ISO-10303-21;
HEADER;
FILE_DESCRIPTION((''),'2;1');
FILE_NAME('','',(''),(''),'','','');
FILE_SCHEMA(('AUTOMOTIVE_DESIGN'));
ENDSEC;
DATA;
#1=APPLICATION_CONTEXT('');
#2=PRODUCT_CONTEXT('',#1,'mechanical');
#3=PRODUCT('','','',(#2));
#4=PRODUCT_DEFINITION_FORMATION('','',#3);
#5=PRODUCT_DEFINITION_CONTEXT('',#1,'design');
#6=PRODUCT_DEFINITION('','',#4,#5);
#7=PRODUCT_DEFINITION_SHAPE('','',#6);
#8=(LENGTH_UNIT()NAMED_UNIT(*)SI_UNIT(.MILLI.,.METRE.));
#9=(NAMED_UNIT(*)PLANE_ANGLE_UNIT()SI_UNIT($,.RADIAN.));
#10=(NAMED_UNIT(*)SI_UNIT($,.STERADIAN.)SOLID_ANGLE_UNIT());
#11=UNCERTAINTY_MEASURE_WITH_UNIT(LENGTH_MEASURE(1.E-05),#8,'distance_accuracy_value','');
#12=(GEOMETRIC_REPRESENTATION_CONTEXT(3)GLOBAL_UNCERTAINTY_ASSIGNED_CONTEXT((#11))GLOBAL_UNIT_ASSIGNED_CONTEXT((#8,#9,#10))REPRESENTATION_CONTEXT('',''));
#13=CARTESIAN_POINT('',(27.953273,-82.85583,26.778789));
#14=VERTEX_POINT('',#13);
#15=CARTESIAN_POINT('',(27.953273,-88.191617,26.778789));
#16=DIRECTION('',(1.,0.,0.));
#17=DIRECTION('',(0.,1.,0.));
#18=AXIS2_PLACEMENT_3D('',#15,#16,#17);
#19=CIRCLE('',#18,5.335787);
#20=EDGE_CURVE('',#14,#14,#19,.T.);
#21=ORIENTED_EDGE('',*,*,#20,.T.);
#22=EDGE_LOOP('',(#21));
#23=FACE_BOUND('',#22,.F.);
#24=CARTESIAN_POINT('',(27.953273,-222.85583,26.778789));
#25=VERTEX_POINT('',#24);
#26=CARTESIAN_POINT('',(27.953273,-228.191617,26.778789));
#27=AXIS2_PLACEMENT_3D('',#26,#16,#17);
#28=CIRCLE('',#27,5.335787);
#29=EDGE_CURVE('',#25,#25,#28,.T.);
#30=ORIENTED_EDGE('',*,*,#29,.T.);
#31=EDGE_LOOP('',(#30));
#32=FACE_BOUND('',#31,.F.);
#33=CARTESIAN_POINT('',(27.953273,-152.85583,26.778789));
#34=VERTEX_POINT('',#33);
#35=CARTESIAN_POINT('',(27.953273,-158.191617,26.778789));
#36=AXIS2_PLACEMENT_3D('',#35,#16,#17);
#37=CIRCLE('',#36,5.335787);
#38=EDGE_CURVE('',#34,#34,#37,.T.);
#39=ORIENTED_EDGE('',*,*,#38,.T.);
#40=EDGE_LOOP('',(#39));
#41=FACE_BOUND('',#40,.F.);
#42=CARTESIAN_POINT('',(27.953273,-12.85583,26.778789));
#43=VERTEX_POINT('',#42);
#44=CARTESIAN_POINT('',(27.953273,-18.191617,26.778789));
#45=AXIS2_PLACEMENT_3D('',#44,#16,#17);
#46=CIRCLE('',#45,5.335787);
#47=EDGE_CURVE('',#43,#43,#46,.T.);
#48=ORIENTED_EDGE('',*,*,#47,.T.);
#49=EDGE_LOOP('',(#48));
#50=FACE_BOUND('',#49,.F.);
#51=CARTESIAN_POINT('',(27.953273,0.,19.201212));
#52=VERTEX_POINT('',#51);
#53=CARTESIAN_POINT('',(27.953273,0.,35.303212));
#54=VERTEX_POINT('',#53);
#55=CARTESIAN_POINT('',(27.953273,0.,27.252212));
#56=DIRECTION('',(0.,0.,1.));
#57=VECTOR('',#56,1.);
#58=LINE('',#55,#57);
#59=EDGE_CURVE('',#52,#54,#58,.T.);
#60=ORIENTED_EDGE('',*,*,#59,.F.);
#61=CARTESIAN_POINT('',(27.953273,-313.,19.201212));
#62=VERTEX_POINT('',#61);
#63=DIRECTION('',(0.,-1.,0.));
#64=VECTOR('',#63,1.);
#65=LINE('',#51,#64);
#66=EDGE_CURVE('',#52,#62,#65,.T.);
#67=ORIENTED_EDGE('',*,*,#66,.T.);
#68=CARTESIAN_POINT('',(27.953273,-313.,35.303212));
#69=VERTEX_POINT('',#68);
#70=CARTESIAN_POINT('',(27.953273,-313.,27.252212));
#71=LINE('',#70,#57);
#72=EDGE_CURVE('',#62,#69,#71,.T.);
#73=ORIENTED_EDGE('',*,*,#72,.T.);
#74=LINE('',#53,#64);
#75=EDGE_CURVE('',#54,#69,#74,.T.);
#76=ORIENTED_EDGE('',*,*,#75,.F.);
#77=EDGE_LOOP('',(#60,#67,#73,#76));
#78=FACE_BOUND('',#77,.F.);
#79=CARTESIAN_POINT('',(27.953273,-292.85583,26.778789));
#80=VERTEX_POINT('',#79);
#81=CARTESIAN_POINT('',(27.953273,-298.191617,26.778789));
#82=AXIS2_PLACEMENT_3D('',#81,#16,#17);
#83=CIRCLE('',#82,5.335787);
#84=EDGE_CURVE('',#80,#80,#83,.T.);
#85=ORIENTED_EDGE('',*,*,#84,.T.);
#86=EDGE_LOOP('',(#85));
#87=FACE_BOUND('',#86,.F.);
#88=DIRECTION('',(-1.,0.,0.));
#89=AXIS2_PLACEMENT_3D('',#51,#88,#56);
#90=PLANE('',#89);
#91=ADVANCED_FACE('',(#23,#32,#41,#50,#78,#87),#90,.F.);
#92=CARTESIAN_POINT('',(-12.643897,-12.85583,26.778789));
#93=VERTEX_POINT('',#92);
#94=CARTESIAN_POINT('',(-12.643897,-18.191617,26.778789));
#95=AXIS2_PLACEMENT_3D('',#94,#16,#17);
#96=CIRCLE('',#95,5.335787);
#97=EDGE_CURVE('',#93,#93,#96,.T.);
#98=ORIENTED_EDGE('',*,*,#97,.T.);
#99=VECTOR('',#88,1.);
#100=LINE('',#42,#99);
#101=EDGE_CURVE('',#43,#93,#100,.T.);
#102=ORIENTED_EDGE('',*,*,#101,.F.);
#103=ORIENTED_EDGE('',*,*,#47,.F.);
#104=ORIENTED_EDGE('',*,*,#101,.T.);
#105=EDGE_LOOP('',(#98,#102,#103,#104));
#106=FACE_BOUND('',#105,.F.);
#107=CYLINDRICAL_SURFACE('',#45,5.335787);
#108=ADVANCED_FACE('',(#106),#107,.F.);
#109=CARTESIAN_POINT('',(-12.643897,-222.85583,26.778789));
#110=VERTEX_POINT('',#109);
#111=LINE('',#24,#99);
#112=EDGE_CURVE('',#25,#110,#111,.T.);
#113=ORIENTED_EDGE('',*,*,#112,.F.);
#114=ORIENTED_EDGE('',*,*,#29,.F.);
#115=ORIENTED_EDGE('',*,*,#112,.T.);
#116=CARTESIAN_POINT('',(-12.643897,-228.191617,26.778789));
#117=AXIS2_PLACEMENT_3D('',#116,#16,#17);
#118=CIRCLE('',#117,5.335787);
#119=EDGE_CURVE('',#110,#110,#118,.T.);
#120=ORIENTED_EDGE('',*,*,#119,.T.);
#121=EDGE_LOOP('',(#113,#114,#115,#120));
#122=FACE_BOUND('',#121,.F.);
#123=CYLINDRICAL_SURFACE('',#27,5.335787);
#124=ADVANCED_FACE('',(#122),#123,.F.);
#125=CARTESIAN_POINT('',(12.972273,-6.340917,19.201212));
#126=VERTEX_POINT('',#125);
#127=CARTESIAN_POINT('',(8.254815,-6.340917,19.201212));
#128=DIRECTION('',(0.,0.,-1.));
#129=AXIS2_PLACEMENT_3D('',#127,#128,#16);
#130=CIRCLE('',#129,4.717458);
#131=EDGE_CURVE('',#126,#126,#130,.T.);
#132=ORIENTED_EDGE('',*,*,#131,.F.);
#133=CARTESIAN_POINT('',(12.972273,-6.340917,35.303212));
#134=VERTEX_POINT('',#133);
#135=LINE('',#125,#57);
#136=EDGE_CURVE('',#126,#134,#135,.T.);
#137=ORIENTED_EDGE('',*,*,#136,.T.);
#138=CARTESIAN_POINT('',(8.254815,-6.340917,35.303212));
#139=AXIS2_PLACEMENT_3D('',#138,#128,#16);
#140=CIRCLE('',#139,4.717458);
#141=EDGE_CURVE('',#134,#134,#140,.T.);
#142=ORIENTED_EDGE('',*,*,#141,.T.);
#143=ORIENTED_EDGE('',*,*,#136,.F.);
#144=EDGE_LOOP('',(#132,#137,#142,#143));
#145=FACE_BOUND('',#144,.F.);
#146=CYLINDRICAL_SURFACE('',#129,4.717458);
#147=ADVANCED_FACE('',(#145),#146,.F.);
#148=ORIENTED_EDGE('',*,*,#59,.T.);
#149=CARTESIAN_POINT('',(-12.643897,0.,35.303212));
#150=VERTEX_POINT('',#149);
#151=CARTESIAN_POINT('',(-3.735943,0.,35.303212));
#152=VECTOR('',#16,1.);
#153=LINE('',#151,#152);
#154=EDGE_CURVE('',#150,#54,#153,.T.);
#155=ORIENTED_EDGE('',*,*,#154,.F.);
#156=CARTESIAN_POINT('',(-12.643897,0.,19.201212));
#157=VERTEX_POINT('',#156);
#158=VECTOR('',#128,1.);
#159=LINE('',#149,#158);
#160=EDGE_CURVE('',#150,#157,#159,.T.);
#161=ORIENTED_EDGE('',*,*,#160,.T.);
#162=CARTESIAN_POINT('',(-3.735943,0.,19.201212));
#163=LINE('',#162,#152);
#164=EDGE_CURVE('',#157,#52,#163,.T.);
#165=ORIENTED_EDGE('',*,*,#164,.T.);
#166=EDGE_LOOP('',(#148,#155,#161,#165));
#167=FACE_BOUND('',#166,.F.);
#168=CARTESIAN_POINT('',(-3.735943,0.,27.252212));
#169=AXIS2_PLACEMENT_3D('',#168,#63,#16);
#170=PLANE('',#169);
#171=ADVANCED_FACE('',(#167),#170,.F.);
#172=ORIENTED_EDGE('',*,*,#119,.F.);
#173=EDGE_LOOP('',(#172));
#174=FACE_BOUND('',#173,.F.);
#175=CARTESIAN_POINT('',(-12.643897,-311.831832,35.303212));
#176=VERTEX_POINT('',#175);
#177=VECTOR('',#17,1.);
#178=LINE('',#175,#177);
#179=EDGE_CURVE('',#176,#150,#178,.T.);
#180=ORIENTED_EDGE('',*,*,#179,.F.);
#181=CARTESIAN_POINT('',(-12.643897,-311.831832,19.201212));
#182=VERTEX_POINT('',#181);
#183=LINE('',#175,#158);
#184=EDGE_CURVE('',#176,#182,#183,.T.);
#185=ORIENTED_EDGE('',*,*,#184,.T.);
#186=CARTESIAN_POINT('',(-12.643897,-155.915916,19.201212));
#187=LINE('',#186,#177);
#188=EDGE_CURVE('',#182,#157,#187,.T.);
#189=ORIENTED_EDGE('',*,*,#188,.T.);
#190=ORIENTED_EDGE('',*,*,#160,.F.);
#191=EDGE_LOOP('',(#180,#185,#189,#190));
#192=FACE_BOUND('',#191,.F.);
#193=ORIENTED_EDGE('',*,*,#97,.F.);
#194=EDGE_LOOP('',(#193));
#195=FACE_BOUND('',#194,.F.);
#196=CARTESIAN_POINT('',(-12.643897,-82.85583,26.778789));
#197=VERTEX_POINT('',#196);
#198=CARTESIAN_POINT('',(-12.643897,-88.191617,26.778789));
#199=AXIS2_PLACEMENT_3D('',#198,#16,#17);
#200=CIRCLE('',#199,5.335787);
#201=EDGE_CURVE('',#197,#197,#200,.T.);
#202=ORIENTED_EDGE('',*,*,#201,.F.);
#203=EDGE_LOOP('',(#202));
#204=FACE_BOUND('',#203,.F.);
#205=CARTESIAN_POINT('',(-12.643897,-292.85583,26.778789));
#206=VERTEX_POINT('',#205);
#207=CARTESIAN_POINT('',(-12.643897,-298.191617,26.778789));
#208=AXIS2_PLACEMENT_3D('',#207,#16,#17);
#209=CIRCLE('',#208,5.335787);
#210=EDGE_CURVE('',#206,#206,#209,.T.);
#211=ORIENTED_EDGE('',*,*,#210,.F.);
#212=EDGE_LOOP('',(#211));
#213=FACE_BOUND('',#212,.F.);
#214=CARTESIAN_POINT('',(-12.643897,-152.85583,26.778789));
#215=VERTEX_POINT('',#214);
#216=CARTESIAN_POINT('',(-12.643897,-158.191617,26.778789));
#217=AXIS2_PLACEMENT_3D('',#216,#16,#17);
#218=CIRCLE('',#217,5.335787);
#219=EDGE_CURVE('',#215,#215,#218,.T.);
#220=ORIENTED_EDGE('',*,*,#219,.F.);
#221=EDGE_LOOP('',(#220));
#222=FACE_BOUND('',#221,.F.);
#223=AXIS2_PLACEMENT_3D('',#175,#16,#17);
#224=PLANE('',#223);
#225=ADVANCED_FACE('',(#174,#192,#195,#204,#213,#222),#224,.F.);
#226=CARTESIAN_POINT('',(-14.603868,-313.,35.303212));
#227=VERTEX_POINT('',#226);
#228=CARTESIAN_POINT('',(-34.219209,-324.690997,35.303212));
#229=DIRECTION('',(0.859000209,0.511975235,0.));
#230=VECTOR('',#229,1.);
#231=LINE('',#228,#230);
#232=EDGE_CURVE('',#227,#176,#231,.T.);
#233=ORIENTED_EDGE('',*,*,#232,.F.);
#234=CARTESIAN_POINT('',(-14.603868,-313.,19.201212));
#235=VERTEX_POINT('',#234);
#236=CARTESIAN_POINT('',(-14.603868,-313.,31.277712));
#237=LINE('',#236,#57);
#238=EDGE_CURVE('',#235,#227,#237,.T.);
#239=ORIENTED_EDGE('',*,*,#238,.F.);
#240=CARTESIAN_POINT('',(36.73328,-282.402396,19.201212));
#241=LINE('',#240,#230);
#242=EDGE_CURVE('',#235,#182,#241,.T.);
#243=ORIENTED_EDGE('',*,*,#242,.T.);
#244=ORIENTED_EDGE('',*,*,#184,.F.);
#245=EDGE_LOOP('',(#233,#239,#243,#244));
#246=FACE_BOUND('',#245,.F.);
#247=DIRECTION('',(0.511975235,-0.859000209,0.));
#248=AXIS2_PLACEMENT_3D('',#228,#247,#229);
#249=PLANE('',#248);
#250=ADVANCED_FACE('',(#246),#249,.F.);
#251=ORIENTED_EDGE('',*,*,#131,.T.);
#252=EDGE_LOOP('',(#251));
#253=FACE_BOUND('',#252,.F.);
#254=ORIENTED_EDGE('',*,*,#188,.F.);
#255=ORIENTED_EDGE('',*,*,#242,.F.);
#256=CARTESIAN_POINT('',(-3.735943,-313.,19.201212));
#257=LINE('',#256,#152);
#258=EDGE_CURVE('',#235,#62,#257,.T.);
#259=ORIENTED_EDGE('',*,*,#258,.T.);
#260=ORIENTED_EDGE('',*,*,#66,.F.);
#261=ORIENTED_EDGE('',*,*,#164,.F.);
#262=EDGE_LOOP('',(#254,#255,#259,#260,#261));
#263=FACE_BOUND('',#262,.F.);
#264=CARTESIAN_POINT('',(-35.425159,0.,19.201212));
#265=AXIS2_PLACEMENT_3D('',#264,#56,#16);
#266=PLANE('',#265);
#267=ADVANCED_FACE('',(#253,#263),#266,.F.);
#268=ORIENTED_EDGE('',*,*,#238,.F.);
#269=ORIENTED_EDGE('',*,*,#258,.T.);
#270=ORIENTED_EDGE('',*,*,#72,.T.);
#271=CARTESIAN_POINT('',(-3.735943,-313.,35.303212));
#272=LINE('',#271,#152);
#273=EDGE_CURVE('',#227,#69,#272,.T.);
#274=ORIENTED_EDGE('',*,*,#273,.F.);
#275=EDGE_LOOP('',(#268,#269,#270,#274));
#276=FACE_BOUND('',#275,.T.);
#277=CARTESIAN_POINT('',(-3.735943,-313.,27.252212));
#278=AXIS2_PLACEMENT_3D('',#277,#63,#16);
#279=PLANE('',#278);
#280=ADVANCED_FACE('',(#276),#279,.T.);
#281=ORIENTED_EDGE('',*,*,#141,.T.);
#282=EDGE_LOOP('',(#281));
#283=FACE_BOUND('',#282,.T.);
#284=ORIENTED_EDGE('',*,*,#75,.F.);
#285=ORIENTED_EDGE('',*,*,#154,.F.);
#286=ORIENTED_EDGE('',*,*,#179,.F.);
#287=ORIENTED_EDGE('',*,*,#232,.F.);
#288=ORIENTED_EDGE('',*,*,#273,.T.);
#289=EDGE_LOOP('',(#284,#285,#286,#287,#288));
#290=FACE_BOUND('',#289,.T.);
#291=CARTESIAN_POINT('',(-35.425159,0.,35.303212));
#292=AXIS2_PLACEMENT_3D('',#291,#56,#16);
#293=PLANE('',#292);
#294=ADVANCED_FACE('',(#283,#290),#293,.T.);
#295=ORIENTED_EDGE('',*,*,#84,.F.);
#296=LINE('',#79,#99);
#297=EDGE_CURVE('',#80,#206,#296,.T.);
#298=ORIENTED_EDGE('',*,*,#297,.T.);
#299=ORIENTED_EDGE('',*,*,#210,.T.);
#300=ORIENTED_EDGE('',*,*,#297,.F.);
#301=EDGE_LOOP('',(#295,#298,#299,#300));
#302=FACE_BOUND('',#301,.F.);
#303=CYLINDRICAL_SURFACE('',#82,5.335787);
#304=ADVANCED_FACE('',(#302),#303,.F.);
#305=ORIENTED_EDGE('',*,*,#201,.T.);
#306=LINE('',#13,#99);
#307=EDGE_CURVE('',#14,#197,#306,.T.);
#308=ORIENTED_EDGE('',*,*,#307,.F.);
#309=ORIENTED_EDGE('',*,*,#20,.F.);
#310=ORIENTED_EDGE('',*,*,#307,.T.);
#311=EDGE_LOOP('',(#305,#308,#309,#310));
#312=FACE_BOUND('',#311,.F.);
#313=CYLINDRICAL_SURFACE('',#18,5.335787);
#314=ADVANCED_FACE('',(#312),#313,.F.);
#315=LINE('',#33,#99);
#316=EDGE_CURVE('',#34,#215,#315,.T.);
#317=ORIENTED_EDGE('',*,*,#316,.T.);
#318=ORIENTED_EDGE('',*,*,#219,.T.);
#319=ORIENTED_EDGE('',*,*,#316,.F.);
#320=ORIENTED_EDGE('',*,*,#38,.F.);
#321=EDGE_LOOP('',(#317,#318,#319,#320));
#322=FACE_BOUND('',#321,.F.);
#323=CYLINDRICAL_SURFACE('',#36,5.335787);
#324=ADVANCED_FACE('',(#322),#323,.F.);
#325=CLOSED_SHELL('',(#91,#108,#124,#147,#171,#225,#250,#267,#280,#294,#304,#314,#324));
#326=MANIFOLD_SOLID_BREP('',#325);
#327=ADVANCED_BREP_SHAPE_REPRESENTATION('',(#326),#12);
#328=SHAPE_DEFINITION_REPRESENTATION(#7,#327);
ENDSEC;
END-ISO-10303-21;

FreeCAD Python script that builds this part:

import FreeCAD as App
import Part
import Sketcher
from FreeCAD import Vector
Q = App.Units.Quantity


def add_polygon(sketch, points):
    """Adds a closed chain of lines whose ends are joined by coincident constraints."""
    first, n = sketch.GeometryCount, len(points)
    for a, b in zip(points, points[1:] + points[:1]):
        sketch.addGeometry(Part.LineSegment(App.Vector(*a, 0), App.Vector(*b, 0)), False)
    for i in range(n):
        sketch.addConstraint(Sketcher.Constraint("Coincident", first + i, 2, first + (i + 1) % n, 1))

doc = App.newDocument("Part")
body = doc.addObject("PartDesign::Body", "Body")

# Sketch on XZ plane
sketch1 = body.newObject("Sketcher::SketchObject", "Sketch")
sketch1.AttachmentSupport = (doc.getObject("XZ_Plane"), [""])
sketch1.MapMode = "FlatFace"
add_polygon(sketch1, [(-35.425159, 35.303212), (-35.425159, 19.201212), (27.953273, 19.201212), (27.953273, 35.303212)])  # lines 0-3
sketch1.addConstraint(Sketcher.Constraint("Vertical", 0))
sketch1.addConstraint(Sketcher.Constraint("Horizontal", 1))
sketch1.addConstraint(Sketcher.Constraint("Vertical", 2))
sketch1.addConstraint(Sketcher.Constraint("Horizontal", 3))
sketch1.addConstraint(Sketcher.Constraint("DistanceY", 0, 2, 0, 1, Q("16.102 mm")))
sketch1.addConstraint(Sketcher.Constraint("DistanceX", 1, 1, 1, 2, Q("63.378432 mm")))
sketch1.addConstraint(Sketcher.Constraint("DistanceX", 0, 2, -1, 1, Q("35.425159 mm")))
sketch1.addConstraint(Sketcher.Constraint("DistanceY", -1, 1, 0, 2, Q("19.201212 mm")))
pad1 = body.newObject("PartDesign::Pad", "Pad")
pad1.Profile = sketch1
pad1.Length = 313

# Sketch on YZ plane
sketch2 = body.newObject("Sketcher::SketchObject", "Sketch001")
sketch2.AttachmentSupport = (doc.getObject("YZ_Plane"), [""])
sketch2.MapMode = "FlatFace"
sketch2.AttachmentOffset = App.Placement(Vector(0, 0, 27.953273), App.Rotation())
sketch2.addGeometry(Part.Circle(Vector(-18.191617, 26.778789, 0), Vector(0, 0, 1), 5.335787), False)
sketch2.addGeometry(Part.Circle(Vector(-88.191617, 26.778789, 0), Vector(0, 0, 1), 5.335787), False)
sketch2.addGeometry(Part.Circle(Vector(-158.191617, 26.778789, 0), Vector(0, 0, 1), 5.335787), False)
sketch2.addGeometry(Part.Circle(Vector(-228.191617, 26.778789, 0), Vector(0, 0, 1), 5.335787), False)
sketch2.addGeometry(Part.Circle(Vector(-298.191617, 26.778789, 0), Vector(0, 0, 1), 5.335787), False)
sketch2.addConstraint(Sketcher.Constraint("Equal", 0, 1))
sketch2.addConstraint(Sketcher.Constraint("Equal", 1, 2))
sketch2.addConstraint(Sketcher.Constraint("Equal", 2, 3))
sketch2.addConstraint(Sketcher.Constraint("Equal", 3, 4))
sketch2.addConstraint(Sketcher.Constraint("Horizontal", 0, 3, 1, 3))
sketch2.addConstraint(Sketcher.Constraint("Horizontal", 1, 3, 2, 3))
sketch2.addConstraint(Sketcher.Constraint("Horizontal", 2, 3, 3, 3))
sketch2.addConstraint(Sketcher.Constraint("Horizontal", 3, 3, 4, 3))
sketch2.addConstraint(Sketcher.Constraint("DistanceX", 1, 3, 0, 3, Q("70 mm")))
sketch2.addConstraint(Sketcher.Constraint("DistanceX", 2, 3, 1, 3, Q("70 mm")))
sketch2.addConstraint(Sketcher.Constraint("DistanceX", 3, 3, 2, 3, Q("70 mm")))
sketch2.addConstraint(Sketcher.Constraint("DistanceX", 4, 3, 3, 3, Q("70 mm")))
sketch2.addConstraint(Sketcher.Constraint("Diameter", 0, Q("10.671574 mm")))
sketch2.addConstraint(Sketcher.Constraint("DistanceY", -1, 1, 0, 3, Q("26.778789 mm")))
sketch2.addConstraint(Sketcher.Constraint("DistanceX", 0, 3, -1, 1, Q("18.191617 mm")))
pocket1 = body.newObject("PartDesign::Pocket", "Pocket")
pocket1.Profile = sketch2
pocket1.Type = "ThroughAll"

# Sketch on XY plane
sketch3 = body.newObject("Sketcher::SketchObject", "Sketch002")
sketch3.AttachmentSupport = (doc.getObject("XY_Plane"), [""])
sketch3.MapMode = "FlatFace"
sketch3.AttachmentOffset = App.Placement(Vector(0, 0, 19.201212), App.Rotation())
sketch3.addGeometry(Part.Circle(Vector(8.254815, -6.340917, 0), Vector(0, 0, 1), 4.717458), False)
sketch3.addConstraint(Sketcher.Constraint("Diameter", 0, Q("9.434916 mm")))
sketch3.addConstraint(Sketcher.Constraint("DistanceX", -1, 1, 0, 3, Q("8.254815 mm")))
sketch3.addConstraint(Sketcher.Constraint("DistanceY", 0, 3, -1, 1, Q("6.340917 mm")))
pocket2 = body.newObject("PartDesign::Pocket", "Pocket001")
pocket2.Profile = sketch3
pocket2.Length = 25
pocket2.Reversed = True

# Sketch on XY plane
sketch4 = body.newObject("Sketcher::SketchObject", "Sketch003")
sketch4.AttachmentSupport = (doc.getObject("XY_Plane"), [""])
sketch4.MapMode = "FlatFace"
sketch4.AttachmentOffset = App.Placement(Vector(0, 0, 35.303212), App.Rotation())
add_polygon(sketch4, [(-34.219209, -324.690997), (-12.643897, -311.831832), (-12.643897, 0), (-35.135265, 11.57862), (-57.62665, 0), (-81.669144, -321.138591)])  # lines 0-5
sketch4.addConstraint(Sketcher.Constraint("Vertical", 1))
sketch4.addConstraint(Sketcher.Constraint("PointOnObject", 1, 2, -1))
sketch4.addConstraint(Sketcher.Constraint("PointOnObject", 3, 2, -1))
sketch4.addConstraint(Sketcher.Constraint("Perpendicular", 4, 5))
sketch4.addConstraint(Sketcher.Constraint("DistanceY", 1, 1, 1, 2, Q("311.831832 mm")))
sketch4.addConstraint(Sketcher.Constraint("Distance", 0, Q("25.116772 mm")))
sketch4.addConstraint(Sketcher.Constraint("Distance", 2, Q("25.29676 mm")))
sketch4.addConstraint(Sketcher.Constraint("Distance", 4, Q("322.037321 mm")))
sketch4.addConstraint(Sketcher.Constraint("DistanceY", -1, 1, 2, 2, Q("11.57862 mm")))
sketch4.addConstraint(Sketcher.Constraint("DistanceX", 3, 2, -1, 1, Q("57.62665 mm")))
sketch4.addConstraint(Sketcher.Constraint("DistanceY", 4, 2, -1, 1, Q("321.138591 mm")))
sketch4.addConstraint(Sketcher.Constraint("DistanceX", 5, 2, -1, 1, Q("34.219209 mm")))
pocket3 = body.newObject("PartDesign::Pocket", "Pocket002")
pocket3.Profile = sketch4
pocket3.Length = 25

# Sketch on XY plane
sketch5 = body.newObject("Sketcher::SketchObject", "Sketch004")
sketch5.AttachmentSupport = (doc.getObject("XY_Plane"), [""])
sketch5.MapMode = "FlatFace"
sketch5.AttachmentOffset = App.Placement(Vector(0, 0, 19.201212), App.Rotation())
sketch5.addGeometry(Part.Circle(Vector(8.254815, -6.340917, 0), Vector(0, 0, 1), 4.717458), False)
sketch5.addConstraint(Sketcher.Constraint("Diameter", 0, Q("9.434916 mm")))
sketch5.addConstraint(Sketcher.Constraint("DistanceX", -1, 1, 0, 3, Q("8.254815 mm")))
sketch5.addConstraint(Sketcher.Constraint("DistanceY", 0, 3, -1, 1, Q("6.340917 mm")))
pocket4 = body.newObject("PartDesign::Pocket", "Pocket003")
pocket4.Profile = sketch5
pocket4.Length = 25
pocket4.Reversed = True

doc.recompute()
